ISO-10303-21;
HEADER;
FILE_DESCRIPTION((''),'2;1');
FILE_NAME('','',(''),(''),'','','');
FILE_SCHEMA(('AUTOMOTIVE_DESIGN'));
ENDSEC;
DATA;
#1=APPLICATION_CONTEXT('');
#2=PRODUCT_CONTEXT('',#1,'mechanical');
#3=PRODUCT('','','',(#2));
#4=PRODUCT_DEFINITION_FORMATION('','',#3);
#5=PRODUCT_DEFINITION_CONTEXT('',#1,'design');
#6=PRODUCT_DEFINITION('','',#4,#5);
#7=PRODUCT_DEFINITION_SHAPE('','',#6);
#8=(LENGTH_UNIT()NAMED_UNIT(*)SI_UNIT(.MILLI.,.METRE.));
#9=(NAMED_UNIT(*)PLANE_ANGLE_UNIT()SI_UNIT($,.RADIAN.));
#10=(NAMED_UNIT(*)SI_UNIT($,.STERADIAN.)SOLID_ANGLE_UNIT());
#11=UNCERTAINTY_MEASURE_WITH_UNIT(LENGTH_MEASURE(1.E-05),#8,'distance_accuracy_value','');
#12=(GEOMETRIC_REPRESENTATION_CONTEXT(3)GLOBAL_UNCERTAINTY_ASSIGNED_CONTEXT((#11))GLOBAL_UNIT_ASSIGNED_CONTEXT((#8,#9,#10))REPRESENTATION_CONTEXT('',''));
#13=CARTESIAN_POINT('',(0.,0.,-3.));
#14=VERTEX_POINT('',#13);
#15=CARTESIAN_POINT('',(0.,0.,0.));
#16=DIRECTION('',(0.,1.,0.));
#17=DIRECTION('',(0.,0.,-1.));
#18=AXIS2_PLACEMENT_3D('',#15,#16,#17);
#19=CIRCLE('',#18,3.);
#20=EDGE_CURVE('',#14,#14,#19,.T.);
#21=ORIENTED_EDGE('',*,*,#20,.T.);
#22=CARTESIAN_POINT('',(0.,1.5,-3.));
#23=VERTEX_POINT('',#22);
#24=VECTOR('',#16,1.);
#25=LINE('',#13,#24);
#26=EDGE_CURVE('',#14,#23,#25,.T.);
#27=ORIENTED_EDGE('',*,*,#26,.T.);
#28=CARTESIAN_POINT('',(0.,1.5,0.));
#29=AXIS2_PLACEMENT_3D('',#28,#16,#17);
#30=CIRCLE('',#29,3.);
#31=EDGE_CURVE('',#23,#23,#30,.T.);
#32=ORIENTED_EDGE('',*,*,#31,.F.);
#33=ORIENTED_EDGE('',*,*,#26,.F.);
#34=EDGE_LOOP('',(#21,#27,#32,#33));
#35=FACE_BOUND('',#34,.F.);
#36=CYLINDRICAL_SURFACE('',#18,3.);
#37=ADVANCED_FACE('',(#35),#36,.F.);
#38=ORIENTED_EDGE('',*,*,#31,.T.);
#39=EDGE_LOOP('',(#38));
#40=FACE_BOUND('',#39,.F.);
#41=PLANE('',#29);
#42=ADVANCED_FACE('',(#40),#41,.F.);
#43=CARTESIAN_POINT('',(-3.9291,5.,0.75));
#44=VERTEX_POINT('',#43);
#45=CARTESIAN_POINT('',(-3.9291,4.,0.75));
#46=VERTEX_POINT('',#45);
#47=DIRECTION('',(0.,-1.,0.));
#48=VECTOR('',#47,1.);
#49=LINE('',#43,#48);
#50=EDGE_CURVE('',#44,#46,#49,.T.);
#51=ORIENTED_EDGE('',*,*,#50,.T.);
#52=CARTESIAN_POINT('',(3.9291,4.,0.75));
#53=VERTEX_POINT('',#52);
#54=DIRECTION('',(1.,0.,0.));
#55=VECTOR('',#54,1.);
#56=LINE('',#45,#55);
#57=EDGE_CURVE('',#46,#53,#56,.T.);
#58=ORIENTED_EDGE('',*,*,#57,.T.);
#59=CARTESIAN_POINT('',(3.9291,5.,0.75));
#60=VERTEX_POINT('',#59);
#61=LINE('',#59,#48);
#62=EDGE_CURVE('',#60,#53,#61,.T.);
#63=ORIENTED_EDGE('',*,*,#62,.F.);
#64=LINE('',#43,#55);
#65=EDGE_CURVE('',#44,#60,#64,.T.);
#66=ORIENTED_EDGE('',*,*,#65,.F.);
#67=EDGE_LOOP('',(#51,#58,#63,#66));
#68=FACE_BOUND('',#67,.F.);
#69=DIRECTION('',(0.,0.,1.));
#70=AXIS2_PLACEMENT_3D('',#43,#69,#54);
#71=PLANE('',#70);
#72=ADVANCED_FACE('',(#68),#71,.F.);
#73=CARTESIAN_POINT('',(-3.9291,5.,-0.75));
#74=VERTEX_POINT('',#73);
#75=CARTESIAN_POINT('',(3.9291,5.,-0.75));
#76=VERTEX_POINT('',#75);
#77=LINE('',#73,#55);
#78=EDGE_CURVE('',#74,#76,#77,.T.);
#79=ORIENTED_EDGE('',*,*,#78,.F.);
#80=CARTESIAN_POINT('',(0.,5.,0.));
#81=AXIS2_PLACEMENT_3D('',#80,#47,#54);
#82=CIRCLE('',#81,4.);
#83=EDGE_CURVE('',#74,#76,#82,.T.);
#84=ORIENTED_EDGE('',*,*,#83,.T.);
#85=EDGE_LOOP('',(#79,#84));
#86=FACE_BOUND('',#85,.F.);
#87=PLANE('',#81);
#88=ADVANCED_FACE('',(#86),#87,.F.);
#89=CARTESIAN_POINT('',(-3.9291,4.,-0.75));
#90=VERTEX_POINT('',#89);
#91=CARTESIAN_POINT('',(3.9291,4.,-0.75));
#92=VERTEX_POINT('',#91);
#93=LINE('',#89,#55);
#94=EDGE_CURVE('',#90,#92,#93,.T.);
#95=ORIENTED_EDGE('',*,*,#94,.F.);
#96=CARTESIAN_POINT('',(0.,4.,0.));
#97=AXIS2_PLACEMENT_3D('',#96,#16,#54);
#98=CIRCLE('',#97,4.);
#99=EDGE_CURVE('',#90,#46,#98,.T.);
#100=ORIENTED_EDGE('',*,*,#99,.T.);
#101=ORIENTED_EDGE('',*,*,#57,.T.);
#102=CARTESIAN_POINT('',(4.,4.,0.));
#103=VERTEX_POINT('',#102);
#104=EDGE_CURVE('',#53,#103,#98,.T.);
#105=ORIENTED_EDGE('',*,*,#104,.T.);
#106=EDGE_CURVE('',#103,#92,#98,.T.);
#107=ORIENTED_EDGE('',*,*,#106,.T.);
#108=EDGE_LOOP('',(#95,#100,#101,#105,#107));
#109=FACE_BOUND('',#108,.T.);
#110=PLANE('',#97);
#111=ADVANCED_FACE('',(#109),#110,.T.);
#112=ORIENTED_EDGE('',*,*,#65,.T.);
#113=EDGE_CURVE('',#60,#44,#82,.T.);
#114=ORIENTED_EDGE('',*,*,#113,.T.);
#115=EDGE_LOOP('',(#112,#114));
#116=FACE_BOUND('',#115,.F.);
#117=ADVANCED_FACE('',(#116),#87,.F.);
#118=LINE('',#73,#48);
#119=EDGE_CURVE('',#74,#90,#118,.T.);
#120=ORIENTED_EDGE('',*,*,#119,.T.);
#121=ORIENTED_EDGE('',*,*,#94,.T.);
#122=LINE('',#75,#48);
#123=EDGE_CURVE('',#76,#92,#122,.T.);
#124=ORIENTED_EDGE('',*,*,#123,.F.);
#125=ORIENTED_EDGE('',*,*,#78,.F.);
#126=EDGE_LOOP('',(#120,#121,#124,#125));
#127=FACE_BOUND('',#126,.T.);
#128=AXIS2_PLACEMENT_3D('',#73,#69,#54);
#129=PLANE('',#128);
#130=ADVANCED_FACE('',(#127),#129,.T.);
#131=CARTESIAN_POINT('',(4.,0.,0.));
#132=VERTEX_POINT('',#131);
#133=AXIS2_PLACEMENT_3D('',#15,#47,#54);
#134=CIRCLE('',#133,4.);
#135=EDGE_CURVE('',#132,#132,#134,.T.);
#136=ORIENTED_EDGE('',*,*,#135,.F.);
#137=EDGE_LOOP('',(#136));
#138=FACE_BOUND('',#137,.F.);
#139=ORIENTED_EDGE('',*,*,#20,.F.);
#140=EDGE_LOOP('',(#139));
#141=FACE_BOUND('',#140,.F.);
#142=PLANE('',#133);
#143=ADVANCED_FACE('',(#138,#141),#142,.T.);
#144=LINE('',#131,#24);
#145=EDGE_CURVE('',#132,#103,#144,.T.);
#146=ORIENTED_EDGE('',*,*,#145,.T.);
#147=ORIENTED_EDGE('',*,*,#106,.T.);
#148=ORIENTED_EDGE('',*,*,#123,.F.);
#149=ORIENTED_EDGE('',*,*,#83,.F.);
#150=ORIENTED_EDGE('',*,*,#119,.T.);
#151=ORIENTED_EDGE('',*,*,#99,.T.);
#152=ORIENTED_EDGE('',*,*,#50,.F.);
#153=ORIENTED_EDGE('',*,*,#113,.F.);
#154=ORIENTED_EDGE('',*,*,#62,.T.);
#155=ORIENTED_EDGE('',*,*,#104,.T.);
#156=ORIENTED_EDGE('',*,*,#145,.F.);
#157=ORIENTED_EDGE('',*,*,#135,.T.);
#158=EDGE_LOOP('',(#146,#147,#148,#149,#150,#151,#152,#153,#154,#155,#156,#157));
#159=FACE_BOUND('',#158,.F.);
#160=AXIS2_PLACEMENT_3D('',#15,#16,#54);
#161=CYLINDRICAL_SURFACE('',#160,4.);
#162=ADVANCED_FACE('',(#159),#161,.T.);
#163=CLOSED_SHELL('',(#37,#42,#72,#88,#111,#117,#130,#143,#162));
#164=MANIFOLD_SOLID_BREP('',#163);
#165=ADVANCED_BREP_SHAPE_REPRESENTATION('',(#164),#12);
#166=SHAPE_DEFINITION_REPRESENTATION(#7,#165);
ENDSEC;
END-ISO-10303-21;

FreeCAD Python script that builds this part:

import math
import FreeCAD as App
import Part
import Sketcher
Q = App.Units.Quantity


def add_polygon(sketch, points):
    """Adds a closed chain of lines whose ends are joined by coincident constraints."""
    first, n = sketch.GeometryCount, len(points)
    for a, b in zip(points, points[1:] + points[:1]):
        sketch.addGeometry(Part.LineSegment(App.Vector(*a, 0), App.Vector(*b, 0)), False)
    for i in range(n):
        sketch.addConstraint(Sketcher.Constraint("Coincident", first + i, 2, first + (i + 1) % n, 1))

doc = App.newDocument("Part")
body = doc.addObject("PartDesign::Body", "Body")

# Sketch on XY plane
sketch1 = body.newObject("Sketcher::SketchObject", "Sketch")
sketch1.AttachmentSupport = (doc.getObject("XY_Plane"), [""])
sketch1.MapMode = "FlatFace"
add_polygon(sketch1, [(0, 5), (0, 0), (4, 0), (4, 5)])  # lines 0-3
sketch1.addConstraint(Sketcher.Constraint("Vertical", 0))
sketch1.addConstraint(Sketcher.Constraint("Horizontal", 1))
sketch1.addConstraint(Sketcher.Constraint("Vertical", 2))
sketch1.addConstraint(Sketcher.Constraint("Horizontal", 3))
sketch1.addConstraint(Sketcher.Constraint("Coincident", 0, 2, -1, 1))
sketch1.addConstraint(Sketcher.Constraint("DistanceY", 0, 2, 0, 1, Q("5 mm")))
sketch1.addConstraint(Sketcher.Constraint("DistanceX", 1, 1, 1, 2, Q("4 mm")))
revolution = body.newObject("PartDesign::Revolution", "Revolution")
revolution.Profile = sketch1
revolution.ReferenceAxis = (sketch1, ["V_Axis"])
revolution.Angle = 360

# Sketch on XZ plane
sketch2 = body.newObject("Sketcher::SketchObject", "Sketch001")
sketch2.AttachmentSupport = (doc.getObject("XZ_Plane"), [""])
sketch2.MapMode = "FlatFace"
sketch2.AttachmentOffset = App.Placement(App.Vector(0, 0, -5), App.Rotation())
sketch2.addGeometry(Part.ArcOfCircle(Part.Circle(App.Vector(0, 0, 0), App.Vector(0, 0, 1), 4), math.radians(-11), math.radians(11)), False)
sketch2.addGeometry(Part.LineSegment(App.Vector(3.9, -0.8, 0), App.Vector(-3.9, -0.8, 0)), False)
sketch2.addGeometry(Part.ArcOfCircle(Part.Circle(App.Vector(0, 0, 0), App.Vector(0, 0, 1), 4), math.radians(169), math.radians(191)), False)
sketch2.addGeometry(Part.LineSegment(App.Vector(-3.9, 0.8, 0), App.Vector(3.9, 0.8, 0)), False)
sketch2.addConstraint(Sketcher.Constraint("Coincident", 0, 1, 1, 1))
sketch2.addConstraint(Sketcher.Constraint("Coincident", 1, 2, 2, 2))
sketch2.addConstraint(Sketcher.Constraint("Coincident", 2, 1, 3, 1))
sketch2.addConstraint(Sketcher.Constraint("Coincident", 3, 2, 0, 2))
sketch2.addConstraint(Sketcher.Constraint("Horizontal", 1))
sketch2.addConstraint(Sketcher.Constraint("Horizontal", 3))
sketch2.addConstraint(Sketcher.Constraint("Coincident", 0, 3, -1, 1))
sketch2.addConstraint(Sketcher.Constraint("Coincident", 2, 3, -1, 1))
sketch2.addConstraint(Sketcher.Constraint("Equal", 0, 2))
sketch2.addConstraint(Sketcher.Constraint("Vertical", 1, 2, 2, 1))
sketch2.addConstraint(Sketcher.Constraint("Radius", 0, Q("4 mm")))
sketch2.addConstraint(Sketcher.Constraint("DistanceY", 0, 1, -1, 1, Q("0.75 mm")))
pocket1 = body.newObject("PartDesign::Pocket", "Pocket")
pocket1.Profile = sketch2
pocket1.Length = 1
pocket1.Reversed = True

# Sketch on XZ plane
sketch3 = body.newObject("Sketcher::SketchObject", "Sketch002")
sketch3.AttachmentSupport = (doc.getObject("XZ_Plane"), [""])
sketch3.MapMode = "FlatFace"
sketch3.addGeometry(Part.Circle(App.Vector(0, 0, 0), App.Vector(0, 0, 1), 3), False)
sketch3.addConstraint(Sketcher.Constraint("Coincident", 0, 3, -1, 1))
sketch3.addConstraint(Sketcher.Constraint("Diameter", 0, Q("6 mm")))
doc.recompute()
hole = body.newObject("PartDesign::Hole", "Hole")
hole.Profile = sketch3
hole.ThreadType = "None"
hole.Diameter = 6
hole.DepthType = "Dimension"
hole.Depth = 1.5
hole.DrillPoint = "Flat"

doc.recompute()
